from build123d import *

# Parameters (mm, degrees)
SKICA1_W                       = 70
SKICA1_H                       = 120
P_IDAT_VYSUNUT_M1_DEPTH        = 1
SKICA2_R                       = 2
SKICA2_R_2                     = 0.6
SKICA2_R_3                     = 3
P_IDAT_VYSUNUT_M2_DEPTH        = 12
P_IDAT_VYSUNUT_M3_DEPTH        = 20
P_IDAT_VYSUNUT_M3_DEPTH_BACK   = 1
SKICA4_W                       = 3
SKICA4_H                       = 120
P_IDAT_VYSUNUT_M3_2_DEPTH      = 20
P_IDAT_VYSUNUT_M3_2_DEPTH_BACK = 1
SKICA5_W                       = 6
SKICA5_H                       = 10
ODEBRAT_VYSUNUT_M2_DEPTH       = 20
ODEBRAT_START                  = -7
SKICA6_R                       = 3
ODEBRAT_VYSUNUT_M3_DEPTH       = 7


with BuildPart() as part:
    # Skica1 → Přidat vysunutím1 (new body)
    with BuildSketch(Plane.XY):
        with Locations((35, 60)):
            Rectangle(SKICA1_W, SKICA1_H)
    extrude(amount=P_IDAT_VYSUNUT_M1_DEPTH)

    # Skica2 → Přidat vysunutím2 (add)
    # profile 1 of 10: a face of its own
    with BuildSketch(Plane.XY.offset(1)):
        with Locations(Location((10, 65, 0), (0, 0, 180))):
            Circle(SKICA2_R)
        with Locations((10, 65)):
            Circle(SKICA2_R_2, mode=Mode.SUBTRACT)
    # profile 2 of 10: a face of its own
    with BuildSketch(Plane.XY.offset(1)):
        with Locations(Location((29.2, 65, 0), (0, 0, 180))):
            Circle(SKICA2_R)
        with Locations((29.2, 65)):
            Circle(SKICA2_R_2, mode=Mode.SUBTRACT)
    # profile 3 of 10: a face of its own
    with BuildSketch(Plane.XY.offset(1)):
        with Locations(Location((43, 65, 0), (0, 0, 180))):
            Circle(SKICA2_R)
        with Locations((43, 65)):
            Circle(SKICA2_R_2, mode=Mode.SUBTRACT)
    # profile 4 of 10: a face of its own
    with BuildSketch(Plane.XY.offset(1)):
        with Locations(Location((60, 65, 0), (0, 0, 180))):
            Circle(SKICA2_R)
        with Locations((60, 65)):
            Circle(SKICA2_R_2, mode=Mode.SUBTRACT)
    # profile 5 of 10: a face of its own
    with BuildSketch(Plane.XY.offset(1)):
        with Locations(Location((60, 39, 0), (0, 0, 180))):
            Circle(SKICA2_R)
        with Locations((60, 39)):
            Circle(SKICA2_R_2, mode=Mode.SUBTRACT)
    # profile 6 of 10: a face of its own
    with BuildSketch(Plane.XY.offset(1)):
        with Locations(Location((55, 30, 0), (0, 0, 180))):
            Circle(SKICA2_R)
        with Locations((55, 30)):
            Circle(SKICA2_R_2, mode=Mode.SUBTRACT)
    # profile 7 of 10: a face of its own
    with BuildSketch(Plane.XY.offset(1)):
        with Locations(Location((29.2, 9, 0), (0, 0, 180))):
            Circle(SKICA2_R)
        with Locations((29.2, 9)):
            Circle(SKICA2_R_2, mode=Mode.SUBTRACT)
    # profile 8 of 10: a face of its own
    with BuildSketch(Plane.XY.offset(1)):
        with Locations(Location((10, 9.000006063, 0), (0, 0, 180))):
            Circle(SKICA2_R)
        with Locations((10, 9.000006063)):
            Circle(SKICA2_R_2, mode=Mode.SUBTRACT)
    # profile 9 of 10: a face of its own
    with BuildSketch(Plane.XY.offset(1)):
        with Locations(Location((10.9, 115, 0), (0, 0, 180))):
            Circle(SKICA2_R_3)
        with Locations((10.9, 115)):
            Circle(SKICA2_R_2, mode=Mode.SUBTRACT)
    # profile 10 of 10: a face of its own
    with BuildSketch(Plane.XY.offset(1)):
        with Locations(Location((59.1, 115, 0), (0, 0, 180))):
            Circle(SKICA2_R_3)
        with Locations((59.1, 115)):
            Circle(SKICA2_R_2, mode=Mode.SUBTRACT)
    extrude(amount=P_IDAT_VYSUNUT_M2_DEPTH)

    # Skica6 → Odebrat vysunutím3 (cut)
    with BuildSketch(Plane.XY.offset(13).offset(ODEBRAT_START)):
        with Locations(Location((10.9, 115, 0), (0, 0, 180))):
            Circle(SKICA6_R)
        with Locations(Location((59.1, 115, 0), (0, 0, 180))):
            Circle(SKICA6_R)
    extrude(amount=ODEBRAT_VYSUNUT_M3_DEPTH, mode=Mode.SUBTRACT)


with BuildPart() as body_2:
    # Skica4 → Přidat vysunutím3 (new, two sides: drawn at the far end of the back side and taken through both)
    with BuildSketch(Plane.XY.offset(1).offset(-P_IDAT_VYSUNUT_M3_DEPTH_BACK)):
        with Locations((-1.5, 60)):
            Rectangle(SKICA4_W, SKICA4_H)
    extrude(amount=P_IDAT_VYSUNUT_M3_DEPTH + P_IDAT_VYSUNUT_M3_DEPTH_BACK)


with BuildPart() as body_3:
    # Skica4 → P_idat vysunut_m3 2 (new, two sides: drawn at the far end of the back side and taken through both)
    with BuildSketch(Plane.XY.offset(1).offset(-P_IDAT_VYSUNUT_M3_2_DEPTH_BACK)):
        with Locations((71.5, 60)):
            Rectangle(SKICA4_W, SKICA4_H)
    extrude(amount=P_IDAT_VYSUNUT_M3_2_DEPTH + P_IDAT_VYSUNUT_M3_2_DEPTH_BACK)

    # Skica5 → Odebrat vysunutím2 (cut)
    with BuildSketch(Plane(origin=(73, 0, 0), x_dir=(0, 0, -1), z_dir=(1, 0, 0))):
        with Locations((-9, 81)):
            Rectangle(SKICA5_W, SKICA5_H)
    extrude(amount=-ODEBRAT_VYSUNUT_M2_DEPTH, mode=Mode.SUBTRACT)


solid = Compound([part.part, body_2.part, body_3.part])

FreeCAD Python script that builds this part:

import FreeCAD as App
import Part
import Sketcher
from FreeCAD import Vector

doc = App.newDocument("Part")
body = doc.addObject("PartDesign::Body", "Body")

sketch1 = body.newObject("Sketcher::SketchObject", "Sketch")
sketch1.AttachmentSupport = (doc.getObject("XY_Plane"), [""])
sketch1.MapMode = "FlatFace"
sketch1.addGeometry(Part.LineSegment(Vector(0, 120, 0), Vector(0, 0, 0)), False)
sketch1.addGeometry(Part.LineSegment(Vector(0, 0, 0), Vector(70, 0, 0)), False)
sketch1.addGeometry(Part.LineSegment(Vector(70, 0, 0), Vector(70, 120, 0)), False)
sketch1.addGeometry(Part.LineSegment(Vector(70, 120, 0), Vector(0, 120, 0)), False)
sketch1.addConstraint(Sketcher.Constraint("Coincident", 0, 2, 1, 1))
sketch1.addConstraint(Sketcher.Constraint("Coincident", 1, 2, 2, 1))
sketch1.addConstraint(Sketcher.Constraint("Coincident", 2, 2, 3, 1))
sketch1.addConstraint(Sketcher.Constraint("Coincident", 3, 2, 0, 1))
sketch1.addConstraint(Sketcher.Constraint("Vertical", 0))
sketch1.addConstraint(Sketcher.Constraint("Horizontal", 1))
sketch1.addConstraint(Sketcher.Constraint("Vertical", 2))
sketch1.addConstraint(Sketcher.Constraint("Horizontal", 3))
sketch1.addConstraint(Sketcher.Constraint("Coincident", 0, 2, -1, 1))
sketch1.addConstraint(Sketcher.Constraint("DistanceX", 1, 1, 1, 2, 70.0))
sketch1.addConstraint(Sketcher.Constraint("DistanceY", 0, 2, 0, 1, 120.0))
pad1 = body.newObject("PartDesign::Pad", "Pad")
pad1.Profile = sketch1
pad1.Length = 1

sketch2 = body.newObject("Sketcher::SketchObject", "Sketch001")
sketch2.AttachmentSupport = (doc.getObject("XY_Plane"), [""])
sketch2.MapMode = "FlatFace"
sketch2.AttachmentOffset = App.Placement(Vector(0, 0, 1), App.Rotation())
sketch2.addGeometry(Part.Circle(Vector(10, 65, 0), Vector(0, 0, 1), 2), False)
sketch2.addGeometry(Part.Circle(Vector(10, 65, 0), Vector(0, 0, 1), 0.6), False)
sketch2.addGeometry(Part.Circle(Vector(29.2, 65, 0), Vector(0, 0, 1), 2), False)
sketch2.addGeometry(Part.Circle(Vector(29.2, 65, 0), Vector(0, 0, 1), 0.6), False)
sketch2.addGeometry(Part.Circle(Vector(43, 65, 0), Vector(0, 0, 1), 2), False)
sketch2.addGeometry(Part.Circle(Vector(43, 65, 0), Vector(0, 0, 1), 0.6), False)
sketch2.addGeometry(Part.Circle(Vector(60, 65, 0), Vector(0, 0, 1), 2), False)
sketch2.addGeometry(Part.Circle(Vector(60, 65, 0), Vector(0, 0, 1), 0.6), False)
sketch2.addGeometry(Part.Circle(Vector(60, 39, 0), Vector(0, 0, 1), 2), False)
sketch2.addGeometry(Part.Circle(Vector(60, 39, 0), Vector(0, 0, 1), 0.6), False)
sketch2.addGeometry(Part.Circle(Vector(55, 30, 0), Vector(0, 0, 1), 2), False)
sketch2.addGeometry(Part.Circle(Vector(55, 30, 0), Vector(0, 0, 1), 0.6), False)
sketch2.addGeometry(Part.Circle(Vector(29.2, 9, 0), Vector(0, 0, 1), 2), False)
sketch2.addGeometry(Part.Circle(Vector(29.2, 9, 0), Vector(0, 0, 1), 0.6), False)
sketch2.addGeometry(Part.Circle(Vector(10, 9, 0), Vector(0, 0, 1), 2), False)
sketch2.addGeometry(Part.Circle(Vector(10, 9, 0), Vector(0, 0, 1), 0.6), False)
sketch2.addGeometry(Part.Circle(Vector(10.9, 115, 0), Vector(0, 0, 1), 3), False)
sketch2.addGeometry(Part.Circle(Vector(10.9, 115, 0), Vector(0, 0, 1), 0.6), False)
sketch2.addGeometry(Part.Circle(Vector(59.1, 115, 0), Vector(0, 0, 1), 3), False)
sketch2.addGeometry(Part.Circle(Vector(59.1, 115, 0), Vector(0, 0, 1), 0.6), False)
sketch2.addConstraint(Sketcher.Constraint("Coincident", 1, 3, 0, 3))
sketch2.addConstraint(Sketcher.Constraint("Coincident", 3, 3, 2, 3))
sketch2.addConstraint(Sketcher.Constraint("Coincident", 5, 3, 4, 3))
sketch2.addConstraint(Sketcher.Constraint("Coincident", 7, 3, 6, 3))
sketch2.addConstraint(Sketcher.Constraint("Coincident", 9, 3, 8, 3))
sketch2.addConstraint(Sketcher.Constraint("Coincident", 11, 3, 10, 3))
sketch2.addConstraint(Sketcher.Constraint("Coincident", 13, 3, 12, 3))
sketch2.addConstraint(Sketcher.Constraint("Coincident", 15, 3, 14, 3))
sketch2.addConstraint(Sketcher.Constraint("Coincident", 17, 3, 16, 3))
sketch2.addConstraint(Sketcher.Constraint("Coincident", 19, 3, 18, 3))
sketch2.addConstraint(Sketcher.Constraint("Equal", 0, 2))
sketch2.addConstraint(Sketcher.Constraint("Equal", 1, 3))
sketch2.addConstraint(Sketcher.Constraint("Equal", 2, 4))
sketch2.addConstraint(Sketcher.Constraint("Equal", 3, 5))
sketch2.addConstraint(Sketcher.Constraint("Equal", 4, 6))
sketch2.addConstraint(Sketcher.Constraint("Equal", 5, 7))
sketch2.addConstraint(Sketcher.Constraint("Equal", 6, 8))
sketch2.addConstraint(Sketcher.Constraint("Equal", 7, 9))
sketch2.addConstraint(Sketcher.Constraint("Equal", 8, 10))
sketch2.addConstraint(Sketcher.Constraint("Equal", 9, 11))
sketch2.addConstraint(Sketcher.Constraint("Equal", 10, 12))
sketch2.addConstraint(Sketcher.Constraint("Equal", 11, 13))
sketch2.addConstraint(Sketcher.Constraint("Equal", 12, 14))
sketch2.addConstraint(Sketcher.Constraint("Equal", 13, 15))
sketch2.addConstraint(Sketcher.Constraint("Equal", 15, 17))
sketch2.addConstraint(Sketcher.Constraint("Equal", 16, 18))
sketch2.addConstraint(Sketcher.Constraint("Equal", 17, 19))
sketch2.addConstraint(Sketcher.Constraint("Horizontal", 1, 3, 2, 3))
sketch2.addConstraint(Sketcher.Constraint("Horizontal", 3, 3, 4, 3))
sketch2.addConstraint(Sketcher.Constraint("Horizontal", 5, 3, 6, 3))
sketch2.addConstraint(Sketcher.Constraint("Horizontal", 17, 3, 18, 3))
sketch2.addConstraint(Sketcher.Constraint("Vertical", 7, 3, 8, 3))
sketch2.addConstraint(Sketcher.Constraint("Vertical", 3, 3, 12, 3))
sketch2.addConstraint(Sketcher.Constraint("Vertical", 1, 3, 14, 3))
sketch2.addConstraint(Sketcher.Constraint("Diameter", 0, 4.0))
sketch2.addConstraint(Sketcher.Constraint("Diameter", 16, 6.0))
sketch2.addConstraint(Sketcher.Constraint("Diameter", 1, 1.2))
sketch2.addConstraint(Sketcher.Constraint("DistanceX", -1, 1, 0, 3, 10.0))
sketch2.addConstraint(Sketcher.Constraint("DistanceY", -1, 1, 0, 3, 65.0))
sketch2.addConstraint(Sketcher.Constraint("DistanceX", -1, 1, 4, 3, 43.0))
sketch2.addConstraint(Sketcher.Constraint("DistanceX", -1, 1, 6, 3, 60.0))
sketch2.addConstraint(Sketcher.Constraint("DistanceY", -1, 1, 8, 3, 39.0))
sketch2.addConstraint(Sketcher.Constraint("DistanceX", -1, 1, 10, 3, 55.0))
sketch2.addConstraint(Sketcher.Constraint("DistanceY", -1, 1, 10, 3, 30.0))
sketch2.addConstraint(Sketcher.Constraint("DistanceY", -1, 1, 12, 3, 9.0))
sketch2.addConstraint(Sketcher.Constraint("DistanceY", -1, 1, 16, 3, 115.0))
sketch2.addConstraint(Sketcher.Constraint("DistanceX", -1, 1, 2, 3, 29.2))
sketch2.addConstraint(Sketcher.Constraint("DistanceX", -1, 1, 16, 3, 10.9))
sketch2.addConstraint(Sketcher.Constraint("DistanceX", -1, 1, 18, 3, 59.1))
sketch2.addConstraint(Sketcher.Constraint("DistanceY", -1, 1, 14, 3, 9.000006))
pad2 = body.newObject("PartDesign::Pad", "Pad001")
pad2.Profile = sketch2
pad2.Length = 12

sketch3 = body.newObject("Sketcher::SketchObject", "Sketch002")
sketch3.AttachmentSupport = (doc.getObject("XY_Plane"), [""])
sketch3.MapMode = "FlatFace"
sketch3.AttachmentOffset = App.Placement(Vector(0, 0, 6), App.Rotation())
sketch3.addGeometry(Part.Circle(Vector(10.9, 115, 0), Vector(0, 0, 1), 3), False)
sketch3.addGeometry(Part.Circle(Vector(59.1, 115, 0), Vector(0, 0, 1), 3), False)
sketch3.addConstraint(Sketcher.Constraint("Equal", 0, 1))
sketch3.addConstraint(Sketcher.Constraint("Horizontal", 0, 3, 1, 3))
sketch3.addConstraint(Sketcher.Constraint("Diameter", 0, 6.0))
sketch3.addConstraint(Sketcher.Constraint("DistanceY", -1, 1, 0, 3, 115.0))
sketch3.addConstraint(Sketcher.Constraint("DistanceX", -1, 1, 0, 3, 10.9))
sketch3.addConstraint(Sketcher.Constraint("DistanceX", -1, 1, 1, 3, 59.1))
pocket1 = body.newObject("PartDesign::Pocket", "Pocket")
pocket1.Profile = sketch3
pocket1.Length = 7
pocket1.Reversed = True
body2 = doc.addObject("PartDesign::Body", "Body001")

sketch4 = body2.newObject("Sketcher::SketchObject", "Sketch003")
sketch4.AttachmentSupport = (doc.getObject("XY_Plane001"), [""])
sketch4.MapMode = "FlatFace"
sketch4.AttachmentOffset = App.Placement(Vector(0, 0, 1), App.Rotation())
sketch4.addGeometry(Part.LineSegment(Vector(-3, 120, 0), Vector(-3, 0, 0)), False)
sketch4.addGeometry(Part.LineSegment(Vector(-3, 0, 0), Vector(0, 0, 0)), False)
sketch4.addGeometry(Part.LineSegment(Vector(0, 0, 0), Vector(0, 120, 0)), False)
sketch4.addGeometry(Part.LineSegment(Vector(0, 120, 0), Vector(-3, 120, 0)), False)
sketch4.addConstraint(Sketcher.Constraint("Coincident", 0, 2, 1, 1))
sketch4.addConstraint(Sketcher.Constraint("Coincident", 1, 2, 2, 1))
sketch4.addConstraint(Sketcher.Constraint("Coincident", 2, 2, 3, 1))
sketch4.addConstraint(Sketcher.Constraint("Coincident", 3, 2, 0, 1))
sketch4.addConstraint(Sketcher.Constraint("Vertical", 0))
sketch4.addConstraint(Sketcher.Constraint("Horizontal", 1))
sketch4.addConstraint(Sketcher.Constraint("Vertical", 2))
sketch4.addConstraint(Sketcher.Constraint("Horizontal", 3))
sketch4.addConstraint(Sketcher.Constraint("Coincident", 1, 2, -1, 1))
sketch4.addConstraint(Sketcher.Constraint("DistanceX", 1, 1, 1, 2, 3.0))
sketch4.addConstraint(Sketcher.Constraint("DistanceY", 0, 2, 0, 1, 120.0))
pad3 = body2.newObject("PartDesign::Pad", "Pad002")
pad3.Profile = sketch4
pad3.Type = "TwoLengths"
pad3.Length = 20
pad3.Length2 = 1
body3 = doc.addObject("PartDesign::Body", "Body002")

sketch5 = body3.newObject("Sketcher::SketchObject", "Sketch004")
sketch5.AttachmentSupport = (doc.getObject("XY_Plane002"), [""])
sketch5.MapMode = "FlatFace"
sketch5.AttachmentOffset = App.Placement(Vector(0, 0, 1), App.Rotation())
sketch5.addGeometry(Part.LineSegment(Vector(70, 120, 0), Vector(70, 0, 0)), False)
sketch5.addGeometry(Part.LineSegment(Vector(70, 0, 0), Vector(73, 0, 0)), False)
sketch5.addGeometry(Part.LineSegment(Vector(73, 0, 0), Vector(73, 120, 0)), False)
sketch5.addGeometry(Part.LineSegment(Vector(73, 120, 0), Vector(70, 120, 0)), False)
sketch5.addConstraint(Sketcher.Constraint("Coincident", 0, 2, 1, 1))
sketch5.addConstraint(Sketcher.Constraint("Coincident", 1, 2, 2, 1))
sketch5.addConstraint(Sketcher.Constraint("Coincident", 2, 2, 3, 1))
sketch5.addConstraint(Sketcher.Constraint("Coincident", 3, 2, 0, 1))
sketch5.addConstraint(Sketcher.Constraint("Vertical", 0))
sketch5.addConstraint(Sketcher.Constraint("Horizontal", 1))
sketch5.addConstraint(Sketcher.Constraint("Vertical", 2))
sketch5.addConstraint(Sketcher.Constraint("Horizontal", 3))
sketch5.addConstraint(Sketcher.Constraint("PointOnObject", 0, 2, -1))
sketch5.addConstraint(Sketcher.Constraint("DistanceX", 1, 1, 1, 2, 3.0))
sketch5.addConstraint(Sketcher.Constraint("DistanceY", 0, 2, 0, 1, 120.0))
sketch5.addConstraint(Sketcher.Constraint("DistanceX", -1, 1, 0, 2, 70.0))
pad4 = body3.newObject("PartDesign::Pad", "Pad003")
pad4.Profile = sketch5
pad4.Type = "TwoLengths"
pad4.Length = 20
pad4.Length2 = 1

sketch6 = body3.newObject("Sketcher::SketchObject", "Sketch005")
sketch6.AttachmentSupport = (doc.getObject("YZ_Plane002"), [""])
sketch6.MapMode = "FlatFace"
sketch6.AttachmentOffset = App.Placement(Vector(0, 0, 73), App.Rotation())
sketch6.addGeometry(Part.LineSegment(Vector(86, 12, 0), Vector(76, 12, 0)), False)
sketch6.addGeometry(Part.LineSegment(Vector(76, 12, 0), Vector(76, 6, 0)), False)
sketch6.addGeometry(Part.LineSegment(Vector(76, 6, 0), Vector(86, 6, 0)), False)
sketch6.addGeometry(Part.LineSegment(Vector(86, 6, 0), Vector(86, 12, 0)), False)
sketch6.addConstraint(Sketcher.Constraint("Coincident", 0, 2, 1, 1))
sketch6.addConstraint(Sketcher.Constraint("Coincident", 1, 2, 2, 1))
sketch6.addConstraint(Sketcher.Constraint("Coincident", 2, 2, 3, 1))
sketch6.addConstraint(Sketcher.Constraint("Coincident", 3, 2, 0, 1))
sketch6.addConstraint(Sketcher.Constraint("Horizontal", 0))
sketch6.addConstraint(Sketcher.Constraint("Vertical", 1))
sketch6.addConstraint(Sketcher.Constraint("Horizontal", 2))
sketch6.addConstraint(Sketcher.Constraint("Vertical", 3))
sketch6.addConstraint(Sketcher.Constraint("DistanceX", 0, 2, 0, 1, 10.0))
sketch6.addConstraint(Sketcher.Constraint("DistanceY", 1, 2, 1, 1, 6.0))
sketch6.addConstraint(Sketcher.Constraint("DistanceX", -1, 1, 0, 2, 76.0))
sketch6.addConstraint(Sketcher.Constraint("DistanceY", -1, 1, 0, 2, 12.0))
pocket2 = body3.newObject("PartDesign::Pocket", "Pocket001")
pocket2.Profile = sketch6
pocket2.Length = 20

doc.recompute()
